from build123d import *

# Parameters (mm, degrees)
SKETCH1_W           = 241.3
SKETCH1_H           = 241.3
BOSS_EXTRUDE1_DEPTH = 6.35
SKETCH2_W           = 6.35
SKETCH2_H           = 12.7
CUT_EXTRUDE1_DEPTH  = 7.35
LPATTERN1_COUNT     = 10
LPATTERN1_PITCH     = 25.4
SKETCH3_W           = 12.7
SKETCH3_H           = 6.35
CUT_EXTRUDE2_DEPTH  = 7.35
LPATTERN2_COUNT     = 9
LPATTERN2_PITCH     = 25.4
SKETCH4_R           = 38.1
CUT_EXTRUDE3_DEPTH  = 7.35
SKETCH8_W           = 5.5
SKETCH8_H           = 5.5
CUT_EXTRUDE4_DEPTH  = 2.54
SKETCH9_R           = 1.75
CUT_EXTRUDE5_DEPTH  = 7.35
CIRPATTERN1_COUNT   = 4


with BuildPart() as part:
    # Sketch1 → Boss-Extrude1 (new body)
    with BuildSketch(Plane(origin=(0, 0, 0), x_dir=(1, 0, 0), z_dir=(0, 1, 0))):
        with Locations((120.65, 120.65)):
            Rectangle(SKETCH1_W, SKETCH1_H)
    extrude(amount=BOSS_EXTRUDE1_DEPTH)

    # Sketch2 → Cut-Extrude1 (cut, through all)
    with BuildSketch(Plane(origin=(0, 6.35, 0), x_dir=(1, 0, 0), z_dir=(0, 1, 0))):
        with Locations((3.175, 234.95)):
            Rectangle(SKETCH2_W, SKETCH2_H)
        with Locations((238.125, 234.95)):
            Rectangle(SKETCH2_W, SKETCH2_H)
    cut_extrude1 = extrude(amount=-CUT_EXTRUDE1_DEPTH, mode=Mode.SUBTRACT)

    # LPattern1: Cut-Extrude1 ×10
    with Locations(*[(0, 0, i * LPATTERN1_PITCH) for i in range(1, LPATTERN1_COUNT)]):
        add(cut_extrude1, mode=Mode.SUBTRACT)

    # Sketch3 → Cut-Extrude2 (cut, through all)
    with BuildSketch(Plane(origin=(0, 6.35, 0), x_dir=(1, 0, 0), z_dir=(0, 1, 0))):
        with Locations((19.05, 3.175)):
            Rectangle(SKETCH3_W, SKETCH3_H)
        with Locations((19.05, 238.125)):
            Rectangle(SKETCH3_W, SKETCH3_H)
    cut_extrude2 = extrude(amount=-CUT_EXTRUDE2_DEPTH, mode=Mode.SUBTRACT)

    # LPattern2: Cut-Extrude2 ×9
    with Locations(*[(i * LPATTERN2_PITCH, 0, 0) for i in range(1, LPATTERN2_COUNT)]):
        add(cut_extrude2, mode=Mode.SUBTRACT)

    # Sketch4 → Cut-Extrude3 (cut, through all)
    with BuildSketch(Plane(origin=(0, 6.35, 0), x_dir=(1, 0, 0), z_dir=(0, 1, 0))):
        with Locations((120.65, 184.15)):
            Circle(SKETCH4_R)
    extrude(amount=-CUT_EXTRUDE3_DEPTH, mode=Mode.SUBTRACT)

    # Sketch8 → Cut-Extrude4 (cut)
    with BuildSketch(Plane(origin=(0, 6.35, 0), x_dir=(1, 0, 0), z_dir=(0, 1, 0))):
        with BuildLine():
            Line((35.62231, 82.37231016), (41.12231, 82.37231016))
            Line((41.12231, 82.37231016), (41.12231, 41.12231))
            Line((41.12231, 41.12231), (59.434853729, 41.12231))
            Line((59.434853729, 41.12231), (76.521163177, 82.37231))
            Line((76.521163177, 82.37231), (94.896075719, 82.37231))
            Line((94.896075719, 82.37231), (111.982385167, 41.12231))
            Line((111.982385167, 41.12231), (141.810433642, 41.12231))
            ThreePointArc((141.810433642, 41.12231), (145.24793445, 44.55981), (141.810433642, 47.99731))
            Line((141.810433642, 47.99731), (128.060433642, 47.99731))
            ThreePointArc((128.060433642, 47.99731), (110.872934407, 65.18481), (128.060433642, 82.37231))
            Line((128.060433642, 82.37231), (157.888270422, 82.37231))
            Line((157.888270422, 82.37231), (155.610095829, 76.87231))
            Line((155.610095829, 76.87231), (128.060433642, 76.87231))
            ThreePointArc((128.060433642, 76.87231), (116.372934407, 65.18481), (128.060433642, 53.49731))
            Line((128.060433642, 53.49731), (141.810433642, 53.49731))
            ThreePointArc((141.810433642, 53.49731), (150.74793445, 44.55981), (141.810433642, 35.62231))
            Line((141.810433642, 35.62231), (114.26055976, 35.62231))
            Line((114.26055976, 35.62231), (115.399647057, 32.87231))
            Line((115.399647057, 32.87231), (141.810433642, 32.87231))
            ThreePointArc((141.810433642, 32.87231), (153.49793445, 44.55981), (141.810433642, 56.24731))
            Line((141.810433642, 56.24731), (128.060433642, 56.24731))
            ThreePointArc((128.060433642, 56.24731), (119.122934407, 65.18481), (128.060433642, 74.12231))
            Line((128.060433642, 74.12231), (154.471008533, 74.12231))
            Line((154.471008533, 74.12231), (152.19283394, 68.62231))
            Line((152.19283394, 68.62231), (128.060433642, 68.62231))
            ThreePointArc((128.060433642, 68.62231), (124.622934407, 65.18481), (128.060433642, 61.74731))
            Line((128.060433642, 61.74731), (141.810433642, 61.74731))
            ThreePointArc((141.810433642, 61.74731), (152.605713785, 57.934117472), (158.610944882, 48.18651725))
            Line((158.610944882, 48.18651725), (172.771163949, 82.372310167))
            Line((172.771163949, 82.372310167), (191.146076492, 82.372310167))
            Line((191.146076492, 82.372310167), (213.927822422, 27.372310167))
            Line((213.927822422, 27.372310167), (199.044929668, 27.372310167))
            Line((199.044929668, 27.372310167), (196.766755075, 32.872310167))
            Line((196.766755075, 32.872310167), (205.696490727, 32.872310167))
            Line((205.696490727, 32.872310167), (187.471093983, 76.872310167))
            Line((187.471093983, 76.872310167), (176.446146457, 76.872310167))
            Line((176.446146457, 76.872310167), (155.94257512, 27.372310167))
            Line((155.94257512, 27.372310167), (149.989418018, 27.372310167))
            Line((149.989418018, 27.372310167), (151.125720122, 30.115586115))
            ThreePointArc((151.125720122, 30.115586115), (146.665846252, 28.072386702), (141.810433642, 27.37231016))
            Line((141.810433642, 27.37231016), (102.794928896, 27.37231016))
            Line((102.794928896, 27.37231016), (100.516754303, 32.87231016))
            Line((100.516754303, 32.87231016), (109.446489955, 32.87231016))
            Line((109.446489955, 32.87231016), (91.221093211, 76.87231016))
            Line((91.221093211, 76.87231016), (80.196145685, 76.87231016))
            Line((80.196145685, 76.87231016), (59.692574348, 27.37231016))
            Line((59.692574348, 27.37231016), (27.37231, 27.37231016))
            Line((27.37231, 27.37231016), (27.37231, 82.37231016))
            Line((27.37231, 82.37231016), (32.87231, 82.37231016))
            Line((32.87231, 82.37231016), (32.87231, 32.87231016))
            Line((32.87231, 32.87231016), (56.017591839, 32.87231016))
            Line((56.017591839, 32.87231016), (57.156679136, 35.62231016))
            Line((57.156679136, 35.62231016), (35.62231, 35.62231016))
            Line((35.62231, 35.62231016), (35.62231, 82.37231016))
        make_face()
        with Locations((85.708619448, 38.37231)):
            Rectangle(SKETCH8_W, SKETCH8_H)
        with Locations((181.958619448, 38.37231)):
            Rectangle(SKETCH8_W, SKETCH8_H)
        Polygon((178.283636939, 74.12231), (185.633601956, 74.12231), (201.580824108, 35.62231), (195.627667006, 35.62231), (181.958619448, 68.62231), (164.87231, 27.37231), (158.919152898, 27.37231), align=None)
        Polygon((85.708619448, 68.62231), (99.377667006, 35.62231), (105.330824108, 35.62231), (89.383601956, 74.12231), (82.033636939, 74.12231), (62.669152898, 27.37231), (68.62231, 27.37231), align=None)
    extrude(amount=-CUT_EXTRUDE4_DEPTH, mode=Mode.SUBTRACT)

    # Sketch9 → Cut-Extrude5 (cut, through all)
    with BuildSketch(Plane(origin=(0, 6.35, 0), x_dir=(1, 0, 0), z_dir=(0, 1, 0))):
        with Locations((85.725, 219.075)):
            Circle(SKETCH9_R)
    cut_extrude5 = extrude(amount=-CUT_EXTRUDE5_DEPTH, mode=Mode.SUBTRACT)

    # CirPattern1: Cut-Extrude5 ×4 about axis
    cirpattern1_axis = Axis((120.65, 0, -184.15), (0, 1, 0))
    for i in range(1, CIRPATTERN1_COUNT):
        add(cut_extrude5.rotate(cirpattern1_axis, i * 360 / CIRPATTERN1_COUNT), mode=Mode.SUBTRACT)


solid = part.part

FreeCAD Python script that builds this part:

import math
import FreeCAD as App
import Part
import Sketcher

V = App.Vector
Q = App.Units.Quantity

doc = App.newDocument("Part")
body = doc.addObject("PartDesign::Body", "Body")

# Sketch on XZ plane
sketch1 = body.newObject("Sketcher::SketchObject", "Sketch")
sketch1.AttachmentSupport = (doc.getObject("XZ_Plane"), [""])
sketch1.MapMode = "FlatFace"
sketch1.addGeometry([
    Part.LineSegment(V(0, -241.3, 0), V(0, 0, 0)),
    Part.LineSegment(V(0, 0, 0), V(241.3, 0, 0)),
    Part.LineSegment(V(241.3, 0, 0), V(241.3, -241.3, 0)),
    Part.LineSegment(V(241.3, -241.3, 0), V(0, -241.3, 0)),
], False)
sketch1.addConstraint([
    Sketcher.Constraint("Coincident", 0, 2, 1, 1),
    Sketcher.Constraint("Coincident", 1, 2, 2, 1),
    Sketcher.Constraint("Coincident", 2, 2, 3, 1),
    Sketcher.Constraint("Coincident", 3, 2, 0, 1),
    Sketcher.Constraint("Vertical", 0),
    Sketcher.Constraint("Horizontal", 1),
    Sketcher.Constraint("Vertical", 2),
    Sketcher.Constraint("Horizontal", 3),
    Sketcher.Constraint("Coincident", 0, 2, -1, 1),
    Sketcher.Constraint("Equal", 3, 0),
    Sketcher.Constraint("DistanceX", 1, 1, 1, 2, Q("9.5 in")),
])
pad1 = body.newObject("PartDesign::Pad", "Pad")
pad1.Profile = sketch1
pad1.Length = Q("0.25 in")
pad1.Reversed = True

# Sketch on XZ plane
sketch2 = body.newObject("Sketcher::SketchObject", "Sketch001")
sketch2.AttachmentSupport = (doc.getObject("XZ_Plane"), [""])
sketch2.MapMode = "FlatFace"
sketch2.AttachmentOffset = App.Placement(V(0, 0, -0.25 * 25.4), App.Rotation())
sketch2.addGeometry([
    Part.LineSegment(V(0, -241.3, 0), V(0, -228.6, 0)),  # 0
    Part.LineSegment(V(0, -228.6, 0), V(6.35, -228.6, 0)),  # 1
    Part.LineSegment(V(6.35, -228.6, 0), V(6.35, -241.3, 0)),  # 2
    Part.LineSegment(V(6.35, -241.3, 0), V(0, -241.3, 0)),  # 3
    Part.LineSegment(V(234.95, -241.3, 0), V(234.95, -228.6, 0)),  # 4
    Part.LineSegment(V(234.95, -228.6, 0), V(241.3, -228.6, 0)),  # 5
    Part.LineSegment(V(241.3, -228.6, 0), V(241.3, -241.3, 0)),  # 6
    Part.LineSegment(V(241.3, -241.3, 0), V(234.95, -241.3, 0)),  # 7
], False)
sketch2.addConstraint([
    Sketcher.Constraint("Coincident", 0, 2, 1, 1),
    Sketcher.Constraint("Coincident", 1, 2, 2, 1),
    Sketcher.Constraint("Coincident", 2, 2, 3, 1),
    Sketcher.Constraint("Coincident", 3, 2, 0, 1),
    Sketcher.Constraint("Coincident", 4, 2, 5, 1),
    Sketcher.Constraint("Coincident", 5, 2, 6, 1),
    Sketcher.Constraint("Coincident", 6, 2, 7, 1),
    Sketcher.Constraint("Coincident", 7, 2, 4, 1),
    Sketcher.Constraint("Vertical", 0),
    Sketcher.Constraint("Horizontal", 1),
    Sketcher.Constraint("Vertical", 2),
    Sketcher.Constraint("Horizontal", 3),
    Sketcher.Constraint("Vertical", 4),
    Sketcher.Constraint("Horizontal", 5),
    Sketcher.Constraint("Vertical", 6),
    Sketcher.Constraint("Horizontal", 7),
    Sketcher.Constraint("PointOnObject", 0, 2, -2),
    Sketcher.Constraint("Horizontal", 1, 2, 4, 2),
    Sketcher.Constraint("Horizontal", 3, 2, 6, 2),
    Sketcher.Constraint("Equal", 3, 5),
    Sketcher.Constraint("DistanceY", 0, 1, 0, 2, Q("0.5 in")),
    Sketcher.Constraint("DistanceY", 0, 2, -1, 1, Q("9 in")),
    Sketcher.Constraint("DistanceX", 1, 2, 4, 2, Q("9 in")),
    Sketcher.Constraint("DistanceX", 1, 1, 1, 2, Q("0.25 in")),
])
pocket1 = body.newObject("PartDesign::Pocket", "Pocket")
pocket1.Profile = sketch2
pocket1.Type = "ThroughAll"
pocket1.Reversed = True
doc.recompute()

linearpattern = body.newObject("PartDesign::LinearPattern", "LinearPattern")
linearpattern.Originals = [pocket1]
linearpattern.Direction = (doc.getObject("Z_Axis"), [""])
linearpattern.Mode = "offset"
linearpattern.Offset = Q("1 in")
linearpattern.Occurrences = 10
body.Tip = linearpattern

# Sketch on XZ plane
sketch3 = body.newObject("Sketcher::SketchObject", "Sketch002")
sketch3.AttachmentSupport = (doc.getObject("XZ_Plane"), [""])
sketch3.MapMode = "FlatFace"
sketch3.AttachmentOffset = App.Placement(V(0, 0, -0.25 * 25.4), App.Rotation())
sketch3.addGeometry([
    Part.LineSegment(V(12.7, -6.35, 0), V(12.7, 0, 0)),  # 0
    Part.LineSegment(V(12.7, 0, 0), V(25.4, 0, 0)),  # 1
    Part.LineSegment(V(25.4, 0, 0), V(25.4, -6.35, 0)),  # 2
    Part.LineSegment(V(25.4, -6.35, 0), V(12.7, -6.35, 0)),  # 3
    Part.LineSegment(V(12.7, -241.3, 0), V(12.7, -234.95, 0)),  # 4
    Part.LineSegment(V(12.7, -234.95, 0), V(25.4, -234.95, 0)),  # 5
    Part.LineSegment(V(25.4, -234.95, 0), V(25.4, -241.3, 0)),  # 6
    Part.LineSegment(V(25.4, -241.3, 0), V(12.7, -241.3, 0)),  # 7
], False)
sketch3.addConstraint([
    Sketcher.Constraint("Coincident", 0, 2, 1, 1),
    Sketcher.Constraint("Coincident", 1, 2, 2, 1),
    Sketcher.Constraint("Coincident", 2, 2, 3, 1),
    Sketcher.Constraint("Coincident", 3, 2, 0, 1),
    Sketcher.Constraint("Coincident", 4, 2, 5, 1),
    Sketcher.Constraint("Coincident", 5, 2, 6, 1),
    Sketcher.Constraint("Coincident", 6, 2, 7, 1),
    Sketcher.Constraint("Coincident", 7, 2, 4, 1),
    Sketcher.Constraint("Vertical", 0),
    Sketcher.Constraint("Horizontal", 1),
    Sketcher.Constraint("Vertical", 2),
    Sketcher.Constraint("Horizontal", 3),
    Sketcher.Constraint("Vertical", 4),
    Sketcher.Constraint("Horizontal", 5),
    Sketcher.Constraint("Vertical", 6),
    Sketcher.Constraint("Horizontal", 7),
    Sketcher.Constraint("PointOnObject", 0, 2, -1),
    Sketcher.Constraint("Vertical", 3, 2, 4, 2),
    Sketcher.Constraint("Vertical", 2, 2, 5, 2),
    Sketcher.Constraint("Equal", 2, 4),
    Sketcher.Constraint("DistanceX", 1, 1, 1, 2, Q("0.5 in")),
    Sketcher.Constraint("DistanceX", -1, 1, 1, 2, Q("1 in")),
    Sketcher.Constraint("DistanceY", 4, 2, 3, 2, Q("9 in")),
    Sketcher.Constraint("DistanceY", 0, 1, 0, 2, Q("0.25 in")),
])
pocket2 = body.newObject("PartDesign::Pocket", "Pocket001")
pocket2.Profile = sketch3
pocket2.Type = "ThroughAll"
pocket2.Reversed = True
doc.recompute()

linearpattern2 = body.newObject("PartDesign::LinearPattern", "LinearPattern001")
linearpattern2.Originals = [pocket2]
linearpattern2.Direction = (doc.getObject("X_Axis"), [""])
linearpattern2.Mode = "offset"
linearpattern2.Offset = Q("1 in")
linearpattern2.Occurrences = 9
body.Tip = linearpattern2

# Sketch on XZ plane
sketch4 = body.newObject("Sketcher::SketchObject", "Sketch003")
sketch4.AttachmentSupport = (doc.getObject("XZ_Plane"), [""])
sketch4.MapMode = "FlatFace"
sketch4.AttachmentOffset = App.Placement(V(0, 0, -0.25 * 25.4), App.Rotation())
sketch4.addGeometry(Part.Circle(V(120.65, -184.15, 0), V(0, 0, 1), 38.1), False)
sketch4.addConstraint([
    Sketcher.Constraint("Diameter", 0, Q("3 in")),
    Sketcher.Constraint("DistanceX", -1, 1, 0, 3, Q("4.75 in")),
    Sketcher.Constraint("DistanceY", 0, 3, -1, 1, Q("7.25 in")),
])
pocket3 = body.newObject("PartDesign::Pocket", "Pocket002")
pocket3.Profile = sketch4
pocket3.Type = "ThroughAll"
pocket3.Reversed = True

# Sketch on XZ plane
sketch5 = body.newObject("Sketcher::SketchObject", "Sketch004")
sketch5.AttachmentSupport = (doc.getObject("XZ_Plane"), [""])
sketch5.MapMode = "FlatFace"
sketch5.AttachmentOffset = App.Placement(V(0, 0, -0.25 * 25.4), App.Rotation())
sketch5.addGeometry([
    Part.LineSegment(V(41.12231, -82.37231, 0), V(35.62231, -82.37231, 0)),  # 0
    Part.LineSegment(V(35.62231, -82.37231, 0), V(35.62231, -35.62231, 0)),  # 1
    Part.LineSegment(V(35.62231, -35.62231, 0), V(57.156679, -35.62231, 0)),  # 2
    Part.LineSegment(V(57.156679, -35.62231, 0), V(56.017592, -32.87231, 0)),  # 3
    Part.LineSegment(V(56.017592, -32.87231, 0), V(32.87231, -32.87231, 0)),  # 4
    Part.LineSegment(V(32.87231, -32.87231, 0), V(32.87231, -82.37231, 0)),  # 5
    Part.LineSegment(V(32.87231, -82.37231, 0), V(27.37231, -82.37231, 0)),  # 6
    Part.LineSegment(V(27.37231, -82.37231, 0), V(27.37231, -27.37231, 0)),  # 7
    Part.LineSegment(V(27.37231, -27.37231, 0), V(59.692574, -27.37231, 0)),  # 8
    Part.LineSegment(V(59.692574, -27.37231, 0), V(80.196146, -76.87231, 0)),  # 9
    Part.LineSegment(V(80.196146, -76.87231, 0), V(91.221093, -76.87231, 0)),  # 10
    Part.LineSegment(V(91.221093, -76.87231, 0), V(109.44649, -32.87231, 0)),  # 11
    Part.LineSegment(V(109.44649, -32.87231, 0), V(100.516754, -32.87231, 0)),  # 12
    Part.LineSegment(V(100.516754, -32.87231, 0), V(102.794929, -27.37231, 0)),  # 13
    Part.LineSegment(V(102.794929, -27.37231, 0), V(141.810434, -27.37231, 0)),  # 14
    Part.ArcOfCircle(Part.Circle(V(141.810434, -44.55981, 0), V(0, 0, 1), 17.1875), math.radians(57.181454), math.radians(90.000003)),  # 15
    Part.LineSegment(V(151.12572, -30.115586, 0), V(149.989418, -27.37231, 0)),  # 16
    Part.LineSegment(V(149.989418, -27.37231, 0), V(155.942575, -27.37231, 0)),  # 17
    Part.LineSegment(V(155.942575, -27.37231, 0), V(176.446146, -76.87231, 0)),  # 18
    Part.LineSegment(V(176.446146, -76.87231, 0), V(187.471094, -76.87231, 0)),  # 19
    Part.LineSegment(V(187.471094, -76.87231, 0), V(205.696491, -32.87231, 0)),  # 20
    Part.LineSegment(V(205.696491, -32.87231, 0), V(196.766755, -32.87231, 0)),  # 21
    Part.LineSegment(V(196.766755, -32.87231, 0), V(199.04493, -27.37231, 0)),  # 22
    Part.LineSegment(V(199.04493, -27.37231, 0), V(213.927822, -27.37231, 0)),  # 23
    Part.LineSegment(V(213.927822, -27.37231, 0), V(191.146076, -82.37231, 0)),  # 24
    Part.LineSegment(V(191.146076, -82.37231, 0), V(172.771164, -82.37231, 0)),  # 25
    Part.LineSegment(V(172.771164, -82.37231, 0), V(158.610945, -48.186517, 0)),  # 26
    Part.ArcOfCircle(Part.Circle(V(141.810434, -44.55981, 0), V(0, 0, 1), 17.1875), math.radians(-90.000003), math.radians(-12.181455)),  # 27
    Part.LineSegment(V(141.810434, -61.74731, 0), V(128.060434, -61.74731, 0)),  # 28
    Part.ArcOfCircle(Part.Circle(V(128.060434, -65.18481, 0), V(0, 0, 1), 3.4375), math.radians(90.000013), math.radians(269.999987)),  # 29
    Part.LineSegment(V(128.060434, -68.62231, 0), V(152.192834, -68.62231, 0)),  # 30
    Part.LineSegment(V(152.192834, -68.62231, 0), V(154.471009, -74.12231, 0)),  # 31
    Part.LineSegment(V(154.471009, -74.12231, 0), V(128.060434, -74.12231, 0)),  # 32
    Part.ArcOfCircle(Part.Circle(V(128.060434, -65.18481, 0), V(0, 0, 1), 8.9375), math.radians(90.000005), math.radians(269.999995)),  # 33
    Part.LineSegment(V(128.060434, -56.24731, 0), V(141.810434, -56.24731, 0)),  # 34
    Part.ArcOfCircle(Part.Circle(V(141.810434, -44.55981, 0), V(0, 0, 1), 11.6875), math.radians(-90.000004), math.radians(90.000004)),  # 35
    Part.LineSegment(V(141.810434, -32.87231, 0), V(115.399647, -32.87231, 0)),  # 36
    Part.LineSegment(V(115.399647, -32.87231, 0), V(114.26056, -35.62231, 0)),  # 37
    Part.LineSegment(V(114.26056, -35.62231, 0), V(141.810434, -35.62231, 0)),  # 38
    Part.ArcOfCircle(Part.Circle(V(141.810434, -44.55981, 0), V(0, 0, 1), 8.9375), math.radians(-90.000005), math.radians(90.000005)),  # 39
    Part.LineSegment(V(141.810434, -53.49731, 0), V(128.060434, -53.49731, 0)),  # 40
    Part.ArcOfCircle(Part.Circle(V(128.060434, -65.18481, 0), V(0, 0, 1), 11.6875), math.radians(90.000004), math.radians(269.999996)),  # 41
    Part.LineSegment(V(128.060434, -76.87231, 0), V(155.610096, -76.87231, 0)),  # 42
    Part.LineSegment(V(155.610096, -76.87231, 0), V(157.88827, -82.37231, 0)),  # 43
    Part.LineSegment(V(157.88827, -82.37231, 0), V(128.060434, -82.37231, 0)),  # 44
    Part.ArcOfCircle(Part.Circle(V(128.060434, -65.18481, 0), V(0, 0, 1), 17.1875), math.radians(90.000003), math.radians(269.999997)),  # 45
    Part.LineSegment(V(128.060434, -47.99731, 0), V(141.810434, -47.99731, 0)),  # 46
    Part.ArcOfCircle(Part.Circle(V(141.810434, -44.55981, 0), V(0, 0, 1), 3.4375), math.radians(-90.000013), math.radians(90.000013)),  # 47
    Part.LineSegment(V(141.810434, -41.12231, 0), V(111.982385, -41.12231, 0)),  # 48
    Part.LineSegment(V(111.982385, -41.12231, 0), V(94.896076, -82.37231, 0)),  # 49
    Part.LineSegment(V(94.896076, -82.37231, 0), V(76.521163, -82.37231, 0)),  # 50
    Part.LineSegment(V(76.521163, -82.37231, 0), V(59.434854, -41.12231, 0)),  # 51
    Part.LineSegment(V(59.434854, -41.12231, 0), V(41.12231, -41.12231, 0)),  # 52
    Part.LineSegment(V(41.12231, -41.12231, 0), V(41.12231, -82.37231, 0)),  # 53
    Part.LineSegment(V(82.958619, -41.12231, 0), V(82.958619, -35.62231, 0)),  # 54
    Part.LineSegment(V(82.958619, -35.62231, 0), V(88.458619, -35.62231, 0)),  # 55
    Part.LineSegment(V(88.458619, -35.62231, 0), V(88.458619, -41.12231, 0)),  # 56
    Part.LineSegment(V(88.458619, -41.12231, 0), V(82.958619, -41.12231, 0)),  # 57
    Part.LineSegment(V(179.208619, -41.12231, 0), V(179.208619, -35.62231, 0)),  # 58
    Part.LineSegment(V(179.208619, -35.62231, 0), V(184.708619, -35.62231, 0)),  # 59
    Part.LineSegment(V(184.708619, -35.62231, 0), V(184.708619, -41.12231, 0)),  # 60
    Part.LineSegment(V(184.708619, -41.12231, 0), V(179.208619, -41.12231, 0)),  # 61
    Part.LineSegment(V(185.633602, -74.12231, 0), V(178.283637, -74.12231, 0)),  # 62
    Part.LineSegment(V(178.283637, -74.12231, 0), V(158.919153, -27.37231, 0)),  # 63
    Part.LineSegment(V(158.919153, -27.37231, 0), V(164.87231, -27.37231, 0)),  # 64
    Part.LineSegment(V(164.87231, -27.37231, 0), V(181.958619, -68.62231, 0)),  # 65
    Part.LineSegment(V(181.958619, -68.62231, 0), V(195.627667, -35.62231, 0)),  # 66
    Part.LineSegment(V(195.627667, -35.62231, 0), V(201.580824, -35.62231, 0)),  # 67
    Part.LineSegment(V(201.580824, -35.62231, 0), V(185.633602, -74.12231, 0)),  # 68
    Part.LineSegment(V(85.708619, -68.62231, 0), V(99.377667, -35.62231, 0)),  # 69
    Part.LineSegment(V(99.377667, -35.62231, 0), V(105.330824, -35.62231, 0)),  # 70
    Part.LineSegment(V(105.330824, -35.62231, 0), V(89.383602, -74.12231, 0)),  # 71
    Part.LineSegment(V(89.383602, -74.12231, 0), V(82.033637, -74.12231, 0)),  # 72
    Part.LineSegment(V(82.033637, -74.12231, 0), V(62.669153, -27.37231, 0)),  # 73
    Part.LineSegment(V(62.669153, -27.37231, 0), V(68.62231, -27.37231, 0)),  # 74
    Part.LineSegment(V(68.62231, -27.37231, 0), V(85.708619, -68.62231, 0)),  # 75
], False)
sketch5.addConstraint([
    Sketcher.Constraint("Coincident", 0, 2, 1, 1),
    Sketcher.Constraint("Coincident", 1, 2, 2, 1),
    Sketcher.Constraint("Coincident", 2, 2, 3, 1),
    Sketcher.Constraint("Coincident", 3, 2, 4, 1),
    Sketcher.Constraint("Coincident", 4, 2, 5, 1),
    Sketcher.Constraint("Coincident", 5, 2, 6, 1),
    Sketcher.Constraint("Coincident", 6, 2, 7, 1),
    Sketcher.Constraint("Coincident", 7, 2, 8, 1),
    Sketcher.Constraint("Coincident", 8, 2, 9, 1),
    Sketcher.Constraint("Coincident", 9, 2, 10, 1),
    Sketcher.Constraint("Coincident", 10, 2, 11, 1),
    Sketcher.Constraint("Coincident", 11, 2, 12, 1),
    Sketcher.Constraint("Coincident", 12, 2, 13, 1),
    Sketcher.Constraint("Coincident", 13, 2, 14, 1),
    Sketcher.Constraint("Tangent", 14, 2, 15, 2),
    Sketcher.Constraint("Coincident", 15, 1, 16, 1),
    Sketcher.Constraint("Coincident", 16, 2, 17, 1),
    Sketcher.Constraint("Coincident", 17, 2, 18, 1),
    Sketcher.Constraint("Coincident", 18, 2, 19, 1),
    Sketcher.Constraint("Coincident", 19, 2, 20, 1),
    Sketcher.Constraint("Coincident", 20, 2, 21, 1),
    Sketcher.Constraint("Coincident", 21, 2, 22, 1),
    Sketcher.Constraint("Coincident", 22, 2, 23, 1),
    Sketcher.Constraint("Coincident", 23, 2, 24, 1),
    Sketcher.Constraint("Coincident", 24, 2, 25, 1),
    Sketcher.Constraint("Coincident", 25, 2, 26, 1),
    Sketcher.Constraint("Coincident", 26, 2, 27, 2),
    Sketcher.Constraint("Tangent", 27, 1, 28, 1),
    Sketcher.Constraint("Tangent", 28, 2, 29, 1),
    Sketcher.Constraint("Tangent", 29, 2, 30, 1),
    Sketcher.Constraint("Coincident", 30, 2, 31, 1),
    Sketcher.Constraint("Coincident", 31, 2, 32, 1),
    Sketcher.Constraint("Tangent", 32, 2, 33, 2),
    Sketcher.Constraint("Tangent", 33, 1, 34, 1),
    Sketcher.Constraint("Tangent", 34, 2, 35, 1),
    Sketcher.Constraint("Tangent", 35, 2, 36, 1),
    Sketcher.Constraint("Coincident", 36, 2, 37, 1),
    Sketcher.Constraint("Coincident", 37, 2, 38, 1),
    Sketcher.Constraint("Tangent", 38, 2, 39, 2),
    Sketcher.Constraint("Tangent", 39, 1, 40, 1),
    Sketcher.Constraint("Tangent", 40, 2, 41, 1),
    Sketcher.Constraint("Tangent", 41, 2, 42, 1),
    Sketcher.Constraint("Coincident", 42, 2, 43, 1),
    Sketcher.Constraint("Coincident", 43, 2, 44, 1),
    Sketcher.Constraint("Tangent", 44, 2, 45, 2),
    Sketcher.Constraint("Tangent", 45, 1, 46, 1),
    Sketcher.Constraint("Tangent", 46, 2, 47, 1),
    Sketcher.Constraint("Tangent", 47, 2, 48, 1),
    Sketcher.Constraint("Coincident", 48, 2, 49, 1),
    Sketcher.Constraint("Coincident", 49, 2, 50, 1),
    Sketcher.Constraint("Coincident", 50, 2, 51, 1),
    Sketcher.Constraint("Coincident", 51, 2, 52, 1),
    Sketcher.Constraint("Coincident", 52, 2, 53, 1),
    Sketcher.Constraint("Coincident", 53, 2, 0, 1),
    Sketcher.Constraint("Coincident", 54, 2, 55, 1),
    Sketcher.Constraint("Coincident", 55, 2, 56, 1),
    Sketcher.Constraint("Coincident", 56, 2, 57, 1),
    Sketcher.Constraint("Coincident", 57, 2, 54, 1),
    Sketcher.Constraint("Coincident", 58, 2, 59, 1),
    Sketcher.Constraint("Coincident", 59, 2, 60, 1),
    Sketcher.Constraint("Coincident", 60, 2, 61, 1),
    Sketcher.Constraint("Coincident", 61, 2, 58, 1),
    Sketcher.Constraint("Coincident", 62, 2, 63, 1),
    Sketcher.Constraint("Coincident", 63, 2, 64, 1),
    Sketcher.Constraint("Coincident", 64, 2, 65, 1),
    Sketcher.Constraint("Coincident", 65, 2, 66, 1),
    Sketcher.Constraint("Coincident", 66, 2, 67, 1),
    Sketcher.Constraint("Coincident", 67, 2, 68, 1),
    Sketcher.Constraint("Coincident", 68, 2, 62, 1),
    Sketcher.Constraint("Coincident", 69, 2, 70, 1),
    Sketcher.Constraint("Coincident", 70, 2, 71, 1),
    Sketcher.Constraint("Coincident", 71, 2, 72, 1),
    Sketcher.Constraint("Coincident", 72, 2, 73, 1),
    Sketcher.Constraint("Coincident", 73, 2, 74, 1),
    Sketcher.Constraint("Coincident", 74, 2, 75, 1),
    Sketcher.Constraint("Coincident", 75, 2, 69, 1),
    Sketcher.Constraint("Horizontal", 0),
    Sketcher.Constraint("Vertical", 1),
    Sketcher.Constraint("Horizontal", 2),
    Sketcher.Constraint("Horizontal", 4),
    Sketcher.Constraint("Vertical", 5),
    Sketcher.Constraint("Horizontal", 6),
    Sketcher.Constraint("Vertical", 7),
    Sketcher.Constraint("Horizontal", 8),
    Sketcher.Constraint("Horizontal", 10),
    Sketcher.Constraint("Horizontal", 12),
    Sketcher.Constraint("Horizontal", 14),
    Sketcher.Constraint("Horizontal", 17),
    Sketcher.Constraint("Horizontal", 19),
    Sketcher.Constraint("Horizontal", 21),
    Sketcher.Constraint("Horizontal", 23),
    Sketcher.Constraint("Horizontal", 25),
    Sketcher.Constraint("Horizontal", 28),
    Sketcher.Constraint("Horizontal", 30),
    Sketcher.Constraint("Horizontal", 32),
    Sketcher.Constraint("Horizontal", 34),
    Sketcher.Constraint("Horizontal", 36),
    Sketcher.Constraint("Horizontal", 38),
    Sketcher.Constraint("Horizontal", 40),
    Sketcher.Constraint("Horizontal", 42),
    Sketcher.Constraint("Horizontal", 44),
    Sketcher.Constraint("Horizontal", 46),
    Sketcher.Constraint("Horizontal", 48),
    Sketcher.Constraint("Horizontal", 50),
    Sketcher.Constraint("Horizontal", 52),
    Sketcher.Constraint("Vertical", 53),
    Sketcher.Constraint("Vertical", 54),
    Sketcher.Constraint("Horizontal", 55),
    Sketcher.Constraint("Vertical", 56),
    Sketcher.Constraint("Horizontal", 57),
    Sketcher.Constraint("Vertical", 58),
    Sketcher.Constraint("Horizontal", 59),
    Sketcher.Constraint("Vertical", 60),
    Sketcher.Constraint("Horizontal", 61),
    Sketcher.Constraint("Horizontal", 62),
    Sketcher.Constraint("Horizontal", 64),
    Sketcher.Constraint("Horizontal", 67),
    Sketcher.Constraint("Horizontal", 70),
    Sketcher.Constraint("Horizontal", 72),
    Sketcher.Constraint("Horizontal", 74),
    Sketcher.Constraint("Coincident", 27, 3, 15, 3),
    Sketcher.Constraint("Coincident", 33, 3, 29, 3),
    Sketcher.Constraint("Coincident", 35, 3, 15, 3),
    Sketcher.Constraint("Coincident", 39, 3, 15, 3),
    Sketcher.Constraint("Coincident", 41, 3, 29, 3),
    Sketcher.Constraint("Coincident", 45, 3, 29, 3),
    Sketcher.Constraint("Coincident", 47, 3, 15, 3),
    Sketcher.Constraint("Equal", 15, 27),
    Sketcher.Constraint("Equal", 33, 39),
    Sketcher.Constraint("Equal", 27, 45),
    Sketcher.Constraint("Parallel", 3, 9),
    Sketcher.Constraint("Parallel", 11, 13),
    Sketcher.Constraint("Parallel", 9, 16),
    Sketcher.Constraint("Parallel", 16, 18),
    Sketcher.Constraint("Parallel", 13, 20),
    Sketcher.Constraint("Parallel", 20, 22),
    Sketcher.Constraint("Parallel", 22, 24),
    Sketcher.Constraint("Parallel", 18, 26),
    Sketcher.Constraint("Parallel", 26, 31),
    Sketcher.Constraint("Parallel", 24, 37),
    Sketcher.Constraint("Parallel", 31, 43),
    Sketcher.Constraint("Parallel", 37, 49),
    Sketcher.Constraint("Parallel", 43, 51),
    Sketcher.Constraint("Parallel", 51, 63),
    Sketcher.Constraint("Parallel", 63, 65),
    Sketcher.Constraint("Parallel", 49, 66),
    Sketcher.Constraint("Parallel", 66, 68),
    Sketcher.Constraint("Parallel", 68, 69),
    Sketcher.Constraint("Parallel", 69, 71),
    Sketcher.Constraint("Parallel", 65, 73),
    Sketcher.Constraint("Parallel", 73, 75),
    Sketcher.Constraint("Horizontal", 0, 2, 5, 2),
    Sketcher.Constraint("Horizontal", 4, 2, 11, 2),
    Sketcher.Constraint("Horizontal", 8, 2, 13, 2),
    Sketcher.Constraint("Horizontal", 14, 2, 16, 2),
    Sketcher.Constraint("Horizontal", 10, 2, 18, 2),
    Sketcher.Constraint("Horizontal", 12, 2, 20, 2),
    Sketcher.Constraint("Horizontal", 17, 2, 22, 2),
    Sketcher.Constraint("Horizontal", 6, 2, 24, 2),
    Sketcher.Constraint("Horizontal", 21, 2, 35, 2),
    Sketcher.Constraint("Horizontal", 2, 2, 37, 2),
    Sketcher.Constraint("Horizontal", 19, 2, 41, 2),
    Sketcher.Constraint("Horizontal", 25, 2, 43, 2),
    Sketcher.Constraint("Horizontal", 44, 2, 49, 2),
    Sketcher.Constraint("Horizontal", 48, 2, 51, 2),
    Sketcher.Constraint("Horizontal", 38, 2, 54, 2),
    Sketcher.Constraint("Horizontal", 52, 2, 56, 2),
    Sketcher.Constraint("Horizontal", 55, 2, 58, 2),
    Sketcher.Constraint("Horizontal", 57, 2, 60, 2),
    Sketcher.Constraint("Horizontal", 32, 2, 62, 2),
    Sketcher.Constraint("Horizontal", 23, 2, 63, 2),
    Sketcher.Constraint("Horizontal", 30, 2, 65, 2),
    Sketcher.Constraint("Horizontal", 59, 2, 66, 2),
    Sketcher.Constraint("Horizontal", 67, 2, 69, 2),
    Sketcher.Constraint("Horizontal", 68, 2, 71, 2),
    Sketcher.Constraint("Horizontal", 64, 2, 73, 2),
    Sketcher.Constraint("Horizontal", 65, 2, 75, 2),
    Sketcher.Constraint("Equal", 0, 6),
    Sketcher.Constraint("Equal", 10, 19),
    Sketcher.Constraint("Equal", 12, 21),
    Sketcher.Constraint("Equal", 25, 50),
    Sketcher.Constraint("Equal", 6, 55),
    Sketcher.Constraint("Equal", 57, 59),
    Sketcher.Constraint("Equal", 17, 64),
    Sketcher.Constraint("Equal", 64, 67),
    Sketcher.Constraint("Equal", 67, 70),
    Sketcher.Constraint("Equal", 62, 72),
    Sketcher.Constraint("Equal", 61, 54),
    Sketcher.Constraint("Equal", 22, 31),
    Sketcher.Constraint("Angle", 3, Q("112.5 deg")),
    Sketcher.Constraint("Radius", 15, 17.1875),
    Sketcher.Constraint("Radius", 29, 3.4375),
    Sketcher.Constraint("Radius", 33, 8.9375),
    Sketcher.Constraint("DistanceX", 28, 2, 28, 1, 13.75),
    Sketcher.Constraint("DistanceX", 30, 1, 30, 2, 24.1324),
    Sketcher.Constraint("Distance", 16, 2.9693),
    Sketcher.Constraint("DistanceX", 2, 1, 2, 2, 21.534369),
    Sketcher.Constraint("DistanceX", 4, 2, 4, 1, 23.145282),
    Sketcher.Constraint("DistanceX", 48, 2, 48, 1, 29.828048),
    Sketcher.Constraint("DistanceX", -1, 1, 68, 2, 185.633602),
    Sketcher.Constraint("DistanceX", -1, 1, 71, 2, 89.383602),
    Sketcher.Constraint("DistanceX", 8, 1, 8, 2, 32.320264),
    Sketcher.Constraint("DistanceX", 10, 1, 10, 2, 11.024948),
    Sketcher.Constraint("DistanceX", 12, 2, 12, 1, 8.929736),
    Sketcher.Constraint("DistanceX", 14, 1, 14, 2, 39.015505),
    Sketcher.Constraint("DistanceX", 17, 1, 17, 2, 5.953157),
    Sketcher.Constraint("DistanceX", 23, 1, 23, 2, 14.882893),
    Sketcher.Constraint("DistanceX", 25, 2, 25, 1, 18.374913),
    Sketcher.Constraint("DistanceX", 36, 2, 36, 1, 26.410787),
    Sketcher.Constraint("DistanceX", 42, 1, 42, 2, 27.549662),
    Sketcher.Constraint("DistanceY", 15, 3, -1, 1, 44.55981),
    Sketcher.Constraint("DistanceX", -1, 1, 0, 2, 35.62231),
    Sketcher.Constraint("DistanceX", -1, 1, 54, 2, 82.958619),
    Sketcher.Constraint("DistanceX", -1, 1, 58, 2, 179.208619),
])
pocket4 = body.newObject("PartDesign::Pocket", "Pocket003")
pocket4.Profile = sketch5
pocket4.Length = Q("0.1 in")
pocket4.Reversed = True

# Sketch on XZ plane
sketch6 = body.newObject("Sketcher::SketchObject", "Sketch005")
sketch6.AttachmentSupport = (doc.getObject("XZ_Plane"), [""])
sketch6.MapMode = "FlatFace"
sketch6.AttachmentOffset = App.Placement(V(0, 0, -0.25 * 25.4), App.Rotation())
sketch6.addGeometry(Part.Circle(V(85.725, -219.075, 0), V(0, 0, 1), 1.75), False)
sketch6.addConstraint([
    Sketcher.Constraint("Diameter", 0, 3.5),
    Sketcher.Constraint("DistanceX", -1, 1, 0, 3, Q("3.375 in")),
    Sketcher.Constraint("DistanceY", 0, 3, -1, 1, Q("8.625 in")),
])
pocket5 = body.newObject("PartDesign::Pocket", "Pocket004")
pocket5.Profile = sketch6
pocket5.Type = "ThroughAll"
pocket5.Reversed = True
doc.recompute()

datumline = body.newObject("PartDesign::Line", "DatumLine")
datumline.Placement = App.Placement(V(120.65, 0, -184.15), App.Rotation(V(0, 0, 1), V(0, 1, 0)))
polarpattern = body.newObject("PartDesign::PolarPattern", "PolarPattern")
polarpattern.Originals = [pocket5]
polarpattern.Axis = (datumline, [""])
polarpattern.Angle = 360
polarpattern.Occurrences = 4
body.Tip = polarpattern

doc.recompute()
